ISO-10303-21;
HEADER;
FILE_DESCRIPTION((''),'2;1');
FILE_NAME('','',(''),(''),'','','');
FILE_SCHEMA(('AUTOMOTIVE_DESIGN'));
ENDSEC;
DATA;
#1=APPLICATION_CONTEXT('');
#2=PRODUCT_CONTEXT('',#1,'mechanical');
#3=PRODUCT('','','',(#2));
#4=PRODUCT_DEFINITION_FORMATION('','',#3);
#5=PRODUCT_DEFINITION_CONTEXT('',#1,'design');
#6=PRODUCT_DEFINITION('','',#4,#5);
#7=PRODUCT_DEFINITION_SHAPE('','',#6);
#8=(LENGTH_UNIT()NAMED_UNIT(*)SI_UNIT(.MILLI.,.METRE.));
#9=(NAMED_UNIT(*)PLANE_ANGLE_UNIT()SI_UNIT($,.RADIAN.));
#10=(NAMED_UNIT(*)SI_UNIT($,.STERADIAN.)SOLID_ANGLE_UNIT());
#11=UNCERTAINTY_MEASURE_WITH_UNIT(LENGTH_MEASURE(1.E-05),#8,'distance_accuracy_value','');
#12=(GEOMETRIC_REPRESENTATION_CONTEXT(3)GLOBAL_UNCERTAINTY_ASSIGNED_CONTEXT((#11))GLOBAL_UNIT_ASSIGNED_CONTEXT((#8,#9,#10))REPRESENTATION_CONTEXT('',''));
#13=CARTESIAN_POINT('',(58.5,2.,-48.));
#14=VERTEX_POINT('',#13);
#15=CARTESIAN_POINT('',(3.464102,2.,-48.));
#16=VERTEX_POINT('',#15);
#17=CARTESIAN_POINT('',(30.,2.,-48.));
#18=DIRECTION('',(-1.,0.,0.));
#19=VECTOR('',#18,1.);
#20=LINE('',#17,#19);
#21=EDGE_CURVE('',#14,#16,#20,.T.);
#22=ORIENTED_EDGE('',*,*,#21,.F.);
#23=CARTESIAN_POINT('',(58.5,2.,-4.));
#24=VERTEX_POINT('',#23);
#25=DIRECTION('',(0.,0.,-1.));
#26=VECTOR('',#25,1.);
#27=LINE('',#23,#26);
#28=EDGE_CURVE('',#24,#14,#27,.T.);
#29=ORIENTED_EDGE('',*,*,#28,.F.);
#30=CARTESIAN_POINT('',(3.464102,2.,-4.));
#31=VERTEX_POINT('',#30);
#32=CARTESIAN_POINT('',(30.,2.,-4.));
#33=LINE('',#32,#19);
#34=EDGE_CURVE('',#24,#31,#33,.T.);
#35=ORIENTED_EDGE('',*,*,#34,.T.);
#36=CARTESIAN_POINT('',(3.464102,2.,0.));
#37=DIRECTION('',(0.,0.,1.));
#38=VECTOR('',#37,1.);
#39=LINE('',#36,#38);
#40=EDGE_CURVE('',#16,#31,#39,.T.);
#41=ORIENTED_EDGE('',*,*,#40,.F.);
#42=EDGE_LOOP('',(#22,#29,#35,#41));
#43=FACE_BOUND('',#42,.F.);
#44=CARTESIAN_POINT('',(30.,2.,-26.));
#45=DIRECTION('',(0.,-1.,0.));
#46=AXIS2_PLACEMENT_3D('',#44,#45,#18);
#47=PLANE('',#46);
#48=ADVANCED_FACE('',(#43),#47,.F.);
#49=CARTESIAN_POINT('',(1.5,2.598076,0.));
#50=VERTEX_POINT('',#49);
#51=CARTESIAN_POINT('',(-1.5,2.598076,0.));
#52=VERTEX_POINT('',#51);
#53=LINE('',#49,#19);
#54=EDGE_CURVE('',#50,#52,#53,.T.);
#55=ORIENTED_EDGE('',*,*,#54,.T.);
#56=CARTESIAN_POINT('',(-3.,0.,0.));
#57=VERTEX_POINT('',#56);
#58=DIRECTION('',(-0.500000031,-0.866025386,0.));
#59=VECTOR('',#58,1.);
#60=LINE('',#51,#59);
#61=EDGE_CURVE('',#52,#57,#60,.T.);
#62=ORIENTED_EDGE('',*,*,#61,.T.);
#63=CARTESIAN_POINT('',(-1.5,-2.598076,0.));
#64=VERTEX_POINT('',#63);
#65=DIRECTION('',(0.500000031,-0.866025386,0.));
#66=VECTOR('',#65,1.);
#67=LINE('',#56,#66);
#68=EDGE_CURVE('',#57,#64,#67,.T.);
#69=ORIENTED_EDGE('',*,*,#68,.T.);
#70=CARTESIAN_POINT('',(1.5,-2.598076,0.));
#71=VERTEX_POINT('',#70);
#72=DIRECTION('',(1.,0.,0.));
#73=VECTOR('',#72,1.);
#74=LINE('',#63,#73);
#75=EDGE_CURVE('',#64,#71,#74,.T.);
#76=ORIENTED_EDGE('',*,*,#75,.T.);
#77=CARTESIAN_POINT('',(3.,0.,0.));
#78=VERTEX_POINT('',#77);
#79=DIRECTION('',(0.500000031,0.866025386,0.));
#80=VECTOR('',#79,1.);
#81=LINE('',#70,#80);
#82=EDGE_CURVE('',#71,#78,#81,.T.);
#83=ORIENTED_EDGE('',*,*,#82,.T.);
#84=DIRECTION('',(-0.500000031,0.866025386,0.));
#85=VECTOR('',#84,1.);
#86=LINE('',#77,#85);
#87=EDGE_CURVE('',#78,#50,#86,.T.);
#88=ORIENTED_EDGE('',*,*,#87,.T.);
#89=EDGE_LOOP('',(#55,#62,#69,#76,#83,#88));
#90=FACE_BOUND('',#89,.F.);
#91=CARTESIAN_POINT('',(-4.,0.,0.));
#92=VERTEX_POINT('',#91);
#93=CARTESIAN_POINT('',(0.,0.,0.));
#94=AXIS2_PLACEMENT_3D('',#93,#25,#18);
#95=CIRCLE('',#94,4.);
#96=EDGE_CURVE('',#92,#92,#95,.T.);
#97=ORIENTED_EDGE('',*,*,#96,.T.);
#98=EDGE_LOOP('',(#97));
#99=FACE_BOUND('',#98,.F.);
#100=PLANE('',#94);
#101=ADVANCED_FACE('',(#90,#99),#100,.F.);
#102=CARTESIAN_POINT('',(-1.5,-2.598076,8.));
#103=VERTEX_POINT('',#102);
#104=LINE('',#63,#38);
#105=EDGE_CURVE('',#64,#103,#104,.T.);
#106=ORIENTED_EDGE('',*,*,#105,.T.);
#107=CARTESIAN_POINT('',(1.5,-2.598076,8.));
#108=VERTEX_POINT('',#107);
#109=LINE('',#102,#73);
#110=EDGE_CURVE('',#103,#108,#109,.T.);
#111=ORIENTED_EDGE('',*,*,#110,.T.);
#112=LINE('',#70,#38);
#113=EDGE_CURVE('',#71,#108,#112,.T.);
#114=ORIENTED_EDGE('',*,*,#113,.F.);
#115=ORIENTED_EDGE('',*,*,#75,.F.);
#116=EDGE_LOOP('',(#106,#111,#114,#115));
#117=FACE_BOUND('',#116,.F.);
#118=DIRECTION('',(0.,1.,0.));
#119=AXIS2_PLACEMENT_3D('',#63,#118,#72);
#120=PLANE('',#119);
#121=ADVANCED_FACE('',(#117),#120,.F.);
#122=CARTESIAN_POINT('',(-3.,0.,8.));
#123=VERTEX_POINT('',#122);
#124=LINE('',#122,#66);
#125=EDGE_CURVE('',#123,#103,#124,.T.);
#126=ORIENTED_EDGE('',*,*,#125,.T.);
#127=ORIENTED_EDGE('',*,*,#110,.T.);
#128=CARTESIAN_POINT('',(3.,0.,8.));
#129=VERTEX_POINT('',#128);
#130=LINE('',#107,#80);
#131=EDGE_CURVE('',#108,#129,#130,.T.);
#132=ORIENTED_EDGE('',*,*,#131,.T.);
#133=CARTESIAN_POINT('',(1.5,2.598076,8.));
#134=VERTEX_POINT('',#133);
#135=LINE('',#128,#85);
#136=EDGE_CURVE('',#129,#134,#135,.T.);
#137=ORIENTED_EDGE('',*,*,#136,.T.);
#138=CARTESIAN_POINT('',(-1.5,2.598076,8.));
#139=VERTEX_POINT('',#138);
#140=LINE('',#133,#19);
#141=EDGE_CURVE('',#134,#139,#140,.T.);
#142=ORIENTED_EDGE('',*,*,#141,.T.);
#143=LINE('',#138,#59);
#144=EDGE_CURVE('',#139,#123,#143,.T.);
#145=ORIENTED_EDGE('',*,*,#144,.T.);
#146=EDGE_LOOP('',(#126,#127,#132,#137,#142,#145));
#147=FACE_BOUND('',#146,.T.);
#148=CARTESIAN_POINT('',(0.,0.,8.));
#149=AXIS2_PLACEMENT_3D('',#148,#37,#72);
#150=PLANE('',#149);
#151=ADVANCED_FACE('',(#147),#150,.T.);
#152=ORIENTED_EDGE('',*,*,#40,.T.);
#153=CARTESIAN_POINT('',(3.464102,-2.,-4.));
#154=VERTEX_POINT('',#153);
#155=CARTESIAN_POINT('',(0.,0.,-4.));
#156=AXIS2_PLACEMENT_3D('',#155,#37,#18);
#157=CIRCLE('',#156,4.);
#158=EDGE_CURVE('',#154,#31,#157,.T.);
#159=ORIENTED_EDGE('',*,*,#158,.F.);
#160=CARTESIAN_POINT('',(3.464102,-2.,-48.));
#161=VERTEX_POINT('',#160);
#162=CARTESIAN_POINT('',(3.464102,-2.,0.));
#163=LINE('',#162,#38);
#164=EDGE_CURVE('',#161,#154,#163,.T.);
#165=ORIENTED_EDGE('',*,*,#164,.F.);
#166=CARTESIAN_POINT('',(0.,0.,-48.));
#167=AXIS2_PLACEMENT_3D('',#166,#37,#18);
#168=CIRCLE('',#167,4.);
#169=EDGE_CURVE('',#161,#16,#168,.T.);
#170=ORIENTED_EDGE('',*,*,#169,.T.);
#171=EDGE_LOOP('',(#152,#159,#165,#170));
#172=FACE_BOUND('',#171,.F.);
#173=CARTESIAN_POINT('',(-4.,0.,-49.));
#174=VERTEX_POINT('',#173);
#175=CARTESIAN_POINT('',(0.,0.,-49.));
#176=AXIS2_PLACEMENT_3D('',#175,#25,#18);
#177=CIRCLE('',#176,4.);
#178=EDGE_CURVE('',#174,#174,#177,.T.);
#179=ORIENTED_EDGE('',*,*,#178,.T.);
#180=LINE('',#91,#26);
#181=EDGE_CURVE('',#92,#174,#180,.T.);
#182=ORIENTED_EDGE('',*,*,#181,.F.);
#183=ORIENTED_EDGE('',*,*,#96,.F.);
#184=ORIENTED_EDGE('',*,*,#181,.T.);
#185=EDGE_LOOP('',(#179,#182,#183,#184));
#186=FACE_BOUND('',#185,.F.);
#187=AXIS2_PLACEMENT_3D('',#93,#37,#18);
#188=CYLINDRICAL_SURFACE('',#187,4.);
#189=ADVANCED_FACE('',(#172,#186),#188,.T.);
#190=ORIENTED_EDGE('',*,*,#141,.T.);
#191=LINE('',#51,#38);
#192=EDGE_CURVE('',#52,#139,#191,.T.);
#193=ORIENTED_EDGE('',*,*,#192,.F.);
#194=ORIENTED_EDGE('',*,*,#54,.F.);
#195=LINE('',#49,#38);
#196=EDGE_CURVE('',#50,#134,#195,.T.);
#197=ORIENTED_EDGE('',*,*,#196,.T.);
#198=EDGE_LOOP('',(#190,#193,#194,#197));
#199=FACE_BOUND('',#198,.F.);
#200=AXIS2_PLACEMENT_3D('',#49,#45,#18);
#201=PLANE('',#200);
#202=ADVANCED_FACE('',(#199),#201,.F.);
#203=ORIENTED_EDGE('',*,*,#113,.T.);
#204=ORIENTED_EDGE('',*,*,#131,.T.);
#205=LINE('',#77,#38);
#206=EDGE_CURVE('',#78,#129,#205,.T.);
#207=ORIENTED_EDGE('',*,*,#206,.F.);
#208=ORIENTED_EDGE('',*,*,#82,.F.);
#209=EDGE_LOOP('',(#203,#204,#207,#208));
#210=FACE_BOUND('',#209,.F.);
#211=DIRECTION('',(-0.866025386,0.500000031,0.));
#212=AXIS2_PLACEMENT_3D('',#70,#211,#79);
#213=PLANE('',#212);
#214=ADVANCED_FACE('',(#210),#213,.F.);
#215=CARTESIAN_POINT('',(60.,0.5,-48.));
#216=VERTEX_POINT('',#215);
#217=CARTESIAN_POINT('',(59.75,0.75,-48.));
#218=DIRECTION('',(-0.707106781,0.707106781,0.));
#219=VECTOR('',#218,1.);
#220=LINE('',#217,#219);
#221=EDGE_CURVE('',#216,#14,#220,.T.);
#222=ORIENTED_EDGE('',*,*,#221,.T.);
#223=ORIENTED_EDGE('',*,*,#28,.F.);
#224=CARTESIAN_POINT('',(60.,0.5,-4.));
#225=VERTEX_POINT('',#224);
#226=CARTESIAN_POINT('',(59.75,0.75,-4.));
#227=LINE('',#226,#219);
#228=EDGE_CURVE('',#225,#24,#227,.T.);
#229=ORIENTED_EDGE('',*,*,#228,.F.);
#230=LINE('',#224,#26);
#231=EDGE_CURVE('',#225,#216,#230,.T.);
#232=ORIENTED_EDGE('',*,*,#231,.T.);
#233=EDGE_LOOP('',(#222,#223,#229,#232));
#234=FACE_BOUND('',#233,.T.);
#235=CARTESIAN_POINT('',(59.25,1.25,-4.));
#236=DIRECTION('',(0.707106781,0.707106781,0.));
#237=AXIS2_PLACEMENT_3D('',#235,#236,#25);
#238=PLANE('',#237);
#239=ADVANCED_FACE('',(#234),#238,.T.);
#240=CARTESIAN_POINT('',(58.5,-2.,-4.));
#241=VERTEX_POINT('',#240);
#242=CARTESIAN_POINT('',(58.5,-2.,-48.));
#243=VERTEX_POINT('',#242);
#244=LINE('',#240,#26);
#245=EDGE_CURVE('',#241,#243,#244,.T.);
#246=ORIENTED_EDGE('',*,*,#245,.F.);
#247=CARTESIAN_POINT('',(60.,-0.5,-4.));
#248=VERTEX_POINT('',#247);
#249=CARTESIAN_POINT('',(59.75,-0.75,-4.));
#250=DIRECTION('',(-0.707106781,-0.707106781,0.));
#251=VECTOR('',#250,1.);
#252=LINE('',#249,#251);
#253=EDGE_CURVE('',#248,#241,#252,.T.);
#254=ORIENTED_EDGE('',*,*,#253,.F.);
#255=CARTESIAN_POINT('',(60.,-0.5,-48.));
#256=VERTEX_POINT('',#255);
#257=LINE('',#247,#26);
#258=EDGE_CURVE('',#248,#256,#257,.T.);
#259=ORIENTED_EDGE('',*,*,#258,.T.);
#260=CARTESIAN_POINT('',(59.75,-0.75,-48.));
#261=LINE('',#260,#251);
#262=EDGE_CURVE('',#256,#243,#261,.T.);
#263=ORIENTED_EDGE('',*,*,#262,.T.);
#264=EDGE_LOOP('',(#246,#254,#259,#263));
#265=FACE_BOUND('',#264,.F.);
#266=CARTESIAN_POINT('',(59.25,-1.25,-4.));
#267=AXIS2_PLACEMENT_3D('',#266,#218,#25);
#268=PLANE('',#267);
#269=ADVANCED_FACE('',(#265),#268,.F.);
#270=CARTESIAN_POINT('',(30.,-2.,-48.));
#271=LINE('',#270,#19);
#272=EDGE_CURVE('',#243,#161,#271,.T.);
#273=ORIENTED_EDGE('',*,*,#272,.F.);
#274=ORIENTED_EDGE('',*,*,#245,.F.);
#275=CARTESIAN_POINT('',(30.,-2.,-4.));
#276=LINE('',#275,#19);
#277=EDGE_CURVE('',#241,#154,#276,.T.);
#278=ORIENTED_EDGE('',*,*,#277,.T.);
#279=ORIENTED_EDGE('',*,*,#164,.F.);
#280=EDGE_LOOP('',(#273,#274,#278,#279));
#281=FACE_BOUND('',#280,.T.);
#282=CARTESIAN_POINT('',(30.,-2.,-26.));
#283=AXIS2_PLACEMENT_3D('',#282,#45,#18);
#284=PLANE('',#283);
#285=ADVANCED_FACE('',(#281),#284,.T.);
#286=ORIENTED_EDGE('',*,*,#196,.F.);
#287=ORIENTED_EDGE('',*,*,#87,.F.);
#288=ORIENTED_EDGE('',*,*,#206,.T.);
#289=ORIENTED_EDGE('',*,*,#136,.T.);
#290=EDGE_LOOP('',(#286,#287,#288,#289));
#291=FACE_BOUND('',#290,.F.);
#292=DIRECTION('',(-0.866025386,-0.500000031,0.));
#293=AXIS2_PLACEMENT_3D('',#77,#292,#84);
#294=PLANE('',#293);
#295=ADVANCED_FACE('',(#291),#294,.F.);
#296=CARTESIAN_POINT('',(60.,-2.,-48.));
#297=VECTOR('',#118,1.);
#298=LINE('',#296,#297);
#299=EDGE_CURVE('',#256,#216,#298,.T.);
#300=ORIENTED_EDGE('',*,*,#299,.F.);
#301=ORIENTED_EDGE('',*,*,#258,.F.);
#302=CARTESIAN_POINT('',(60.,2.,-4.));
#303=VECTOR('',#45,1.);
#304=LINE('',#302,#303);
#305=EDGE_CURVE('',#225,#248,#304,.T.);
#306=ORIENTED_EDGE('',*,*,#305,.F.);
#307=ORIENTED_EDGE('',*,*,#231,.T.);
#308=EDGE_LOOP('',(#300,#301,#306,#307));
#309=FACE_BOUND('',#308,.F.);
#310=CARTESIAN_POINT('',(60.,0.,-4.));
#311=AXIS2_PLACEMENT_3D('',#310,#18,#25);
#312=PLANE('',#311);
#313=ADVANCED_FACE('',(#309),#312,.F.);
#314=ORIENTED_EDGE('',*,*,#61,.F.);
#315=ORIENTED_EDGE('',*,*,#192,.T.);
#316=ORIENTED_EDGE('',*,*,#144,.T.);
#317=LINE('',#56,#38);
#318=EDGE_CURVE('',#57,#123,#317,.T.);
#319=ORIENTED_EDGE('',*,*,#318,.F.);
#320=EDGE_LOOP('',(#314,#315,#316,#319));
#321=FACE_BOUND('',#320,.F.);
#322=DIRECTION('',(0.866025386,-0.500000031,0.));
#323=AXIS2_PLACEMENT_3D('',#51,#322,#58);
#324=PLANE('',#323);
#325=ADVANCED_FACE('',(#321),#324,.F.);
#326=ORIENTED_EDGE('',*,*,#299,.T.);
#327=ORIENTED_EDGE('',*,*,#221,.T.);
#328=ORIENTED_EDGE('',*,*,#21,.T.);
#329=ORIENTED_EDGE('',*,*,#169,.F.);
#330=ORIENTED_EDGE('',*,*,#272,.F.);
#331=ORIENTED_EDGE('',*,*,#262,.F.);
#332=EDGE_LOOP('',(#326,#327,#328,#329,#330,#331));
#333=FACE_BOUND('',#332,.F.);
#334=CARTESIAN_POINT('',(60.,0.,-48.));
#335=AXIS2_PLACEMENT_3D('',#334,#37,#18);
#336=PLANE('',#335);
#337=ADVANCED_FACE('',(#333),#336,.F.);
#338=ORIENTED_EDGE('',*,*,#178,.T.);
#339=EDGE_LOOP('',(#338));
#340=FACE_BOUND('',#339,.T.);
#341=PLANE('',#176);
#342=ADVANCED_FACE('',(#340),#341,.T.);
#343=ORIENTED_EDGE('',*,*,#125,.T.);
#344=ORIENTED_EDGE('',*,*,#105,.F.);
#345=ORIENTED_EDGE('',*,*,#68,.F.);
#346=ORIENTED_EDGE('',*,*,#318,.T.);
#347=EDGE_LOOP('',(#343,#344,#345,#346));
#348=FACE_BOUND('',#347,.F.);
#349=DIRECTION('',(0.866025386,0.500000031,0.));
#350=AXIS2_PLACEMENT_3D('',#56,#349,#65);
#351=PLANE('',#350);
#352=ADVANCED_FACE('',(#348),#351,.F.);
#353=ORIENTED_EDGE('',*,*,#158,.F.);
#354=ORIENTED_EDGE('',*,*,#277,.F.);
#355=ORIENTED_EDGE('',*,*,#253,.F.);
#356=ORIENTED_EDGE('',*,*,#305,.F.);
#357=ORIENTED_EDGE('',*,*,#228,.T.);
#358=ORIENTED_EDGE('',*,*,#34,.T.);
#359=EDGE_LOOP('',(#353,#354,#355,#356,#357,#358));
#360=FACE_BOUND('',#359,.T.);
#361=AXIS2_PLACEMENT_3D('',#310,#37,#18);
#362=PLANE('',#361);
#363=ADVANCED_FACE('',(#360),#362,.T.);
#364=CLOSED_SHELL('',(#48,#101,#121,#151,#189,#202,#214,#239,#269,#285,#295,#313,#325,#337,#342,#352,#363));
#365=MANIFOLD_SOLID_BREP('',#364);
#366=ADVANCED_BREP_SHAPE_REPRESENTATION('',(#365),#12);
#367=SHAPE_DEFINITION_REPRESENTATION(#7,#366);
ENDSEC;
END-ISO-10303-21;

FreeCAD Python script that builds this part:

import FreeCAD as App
import Part
import Sketcher
from FreeCAD import Vector
Q = App.Units.Quantity


def edges_at(feature, points):
    """Names of the edges that pass closest to the given points."""
    edges = feature.Shape.Edges
    near = lambda p: min(range(len(edges)), key=lambda i: edges[i].distToShape(Part.Vertex(*p))[0])
    return sorted({f"Edge{near(p) + 1}" for p in points})

doc = App.newDocument("Part")
body = doc.addObject("PartDesign::Body", "Body")

sketch1 = body.newObject("Sketcher::SketchObject", "Sketch")
sketch1.AttachmentSupport = (doc.getObject("XZ_Plane"), [""])
sketch1.MapMode = "FlatFace"
sketch1.addGeometry(Part.LineSegment(Vector(-60, 48, 0), Vector(-60, 4, 0)), False)
sketch1.addGeometry(Part.LineSegment(Vector(-60, 4, 0), Vector(0, 4, 0)), False)
sketch1.addGeometry(Part.LineSegment(Vector(0, 4, 0), Vector(0, 48, 0)), False)
sketch1.addGeometry(Part.LineSegment(Vector(0, 48, 0), Vector(-60, 48, 0)), False)
sketch1.addConstraint(Sketcher.Constraint("Coincident", 0, 2, 1, 1))
sketch1.addConstraint(Sketcher.Constraint("Coincident", 1, 2, 2, 1))
sketch1.addConstraint(Sketcher.Constraint("Coincident", 2, 2, 3, 1))
sketch1.addConstraint(Sketcher.Constraint("Coincident", 3, 2, 0, 1))
sketch1.addConstraint(Sketcher.Constraint("Vertical", 0))
sketch1.addConstraint(Sketcher.Constraint("Horizontal", 1))
sketch1.addConstraint(Sketcher.Constraint("Vertical", 2))
sketch1.addConstraint(Sketcher.Constraint("Horizontal", 3))
sketch1.addConstraint(Sketcher.Constraint("PointOnObject", 1, 2, -2))
sketch1.addConstraint(Sketcher.Constraint("DistanceX", 1, 1, 1, 2, 60.0))
sketch1.addConstraint(Sketcher.Constraint("DistanceY", 0, 2, 0, 1, 44.0))
sketch1.addConstraint(Sketcher.Constraint("DistanceY", -1, 1, 0, 2, 4.0))
pad1 = body.newObject("PartDesign::Pad", "Pad")
pad1.Profile = sketch1
pad1.Length = 4
pad1.Midplane = True
doc.recompute()

chamfer = body.newObject("PartDesign::Chamfer", "Chamfer")
chamfer.Base = (pad1, edges_at(pad1, [(-60, 2, 26), (-60, -2, 26)]))
chamfer.Size = 1.5
body2 = doc.addObject("PartDesign::Body", "Body001")

sketch2 = body2.newObject("Sketcher::SketchObject", "Sketch001")
sketch2.AttachmentSupport = (doc.getObject("XY_Plane001"), [""])
sketch2.MapMode = "FlatFace"
sketch2.addGeometry(Part.LineSegment(Vector(1.5, 2.598076, 0), Vector(-1.5, 2.598076, 0)), False)
sketch2.addGeometry(Part.LineSegment(Vector(-1.5, 2.598076, 0), Vector(-3, 0, 0)), False)
sketch2.addGeometry(Part.LineSegment(Vector(-3, 0, 0), Vector(-1.5, -2.598076, 0)), False)
sketch2.addGeometry(Part.LineSegment(Vector(-1.5, -2.598076, 0), Vector(1.5, -2.598076, 0)), False)
sketch2.addGeometry(Part.LineSegment(Vector(1.5, -2.598076, 0), Vector(3, 0, 0)), False)
sketch2.addGeometry(Part.LineSegment(Vector(3, 0, 0), Vector(1.5, 2.598076, 0)), False)
sketch2.addConstraint(Sketcher.Constraint("Coincident", 0, 2, 1, 1))
sketch2.addConstraint(Sketcher.Constraint("Coincident", 1, 2, 2, 1))
sketch2.addConstraint(Sketcher.Constraint("Coincident", 2, 2, 3, 1))
sketch2.addConstraint(Sketcher.Constraint("Coincident", 3, 2, 4, 1))
sketch2.addConstraint(Sketcher.Constraint("Coincident", 4, 2, 5, 1))
sketch2.addConstraint(Sketcher.Constraint("Coincident", 5, 2, 0, 1))
sketch2.addConstraint(Sketcher.Constraint("Horizontal", 0))
sketch2.addConstraint(Sketcher.Constraint("Horizontal", 3))
sketch2.addConstraint(Sketcher.Constraint("Symmetric", 0, 2, 3, 2, -1, 1))
sketch2.addConstraint(Sketcher.Constraint("Symmetric", 1, 2, 4, 2, -1, 1))
sketch2.addConstraint(Sketcher.Constraint("PointOnObject", 1, 2, -1))
sketch2.addConstraint(Sketcher.Constraint("Parallel", 2, 5))
sketch2.addConstraint(Sketcher.Constraint("Vertical", 0, 2, 2, 2))
sketch2.addConstraint(Sketcher.Constraint("DistanceX", 0, 2, 0, 1, 3.0))
sketch2.addConstraint(Sketcher.Constraint("Angle", 1, Q("-120.000002 deg")))
sketch2.addConstraint(Sketcher.Constraint("Distance", 1, 3.0))
pad2 = body2.newObject("PartDesign::Pad", "Pad001")
pad2.Profile = sketch2
pad2.Length = 8
pad2.Reversed = True
body3 = doc.addObject("PartDesign::Body", "Body002")

sketch3 = body3.newObject("Sketcher::SketchObject", "Sketch002")
sketch3.AttachmentSupport = (doc.getObject("XY_Plane002"), [""])
sketch3.MapMode = "FlatFace"
sketch3.addGeometry(Part.Circle(Vector(0, 0, 0), Vector(0, 0, 1), 4), False)
sketch3.addConstraint(Sketcher.Constraint("Coincident", 0, 3, -1, 1))
sketch3.addConstraint(Sketcher.Constraint("Diameter", 0, 8.0))
pad3 = body3.newObject("PartDesign::Pad", "Pad002")
pad3.Profile = sketch3
pad3.Length = 49
doc.recompute()

boolean = body3.newObject("PartDesign::Boolean", "Boolean")
boolean.Type = "Fuse"
boolean.addObjects([body])
doc.recompute()

boolean2 = body3.newObject("PartDesign::Boolean", "Boolean001")
boolean2.Type = "Fuse"
boolean2.addObjects([body2])
body4 = doc.addObject("PartDesign::Body", "Body003")
doc.recompute()

body3.Placement = App.Placement(Vector(0, 0, 0), App.Rotation(Vector(0, 1, 0), 180))
boolean3 = body4.newObject("PartDesign::Boolean", "Boolean002")
boolean3.Type = "Fuse"
boolean3.addObjects([body3])

doc.recompute()
